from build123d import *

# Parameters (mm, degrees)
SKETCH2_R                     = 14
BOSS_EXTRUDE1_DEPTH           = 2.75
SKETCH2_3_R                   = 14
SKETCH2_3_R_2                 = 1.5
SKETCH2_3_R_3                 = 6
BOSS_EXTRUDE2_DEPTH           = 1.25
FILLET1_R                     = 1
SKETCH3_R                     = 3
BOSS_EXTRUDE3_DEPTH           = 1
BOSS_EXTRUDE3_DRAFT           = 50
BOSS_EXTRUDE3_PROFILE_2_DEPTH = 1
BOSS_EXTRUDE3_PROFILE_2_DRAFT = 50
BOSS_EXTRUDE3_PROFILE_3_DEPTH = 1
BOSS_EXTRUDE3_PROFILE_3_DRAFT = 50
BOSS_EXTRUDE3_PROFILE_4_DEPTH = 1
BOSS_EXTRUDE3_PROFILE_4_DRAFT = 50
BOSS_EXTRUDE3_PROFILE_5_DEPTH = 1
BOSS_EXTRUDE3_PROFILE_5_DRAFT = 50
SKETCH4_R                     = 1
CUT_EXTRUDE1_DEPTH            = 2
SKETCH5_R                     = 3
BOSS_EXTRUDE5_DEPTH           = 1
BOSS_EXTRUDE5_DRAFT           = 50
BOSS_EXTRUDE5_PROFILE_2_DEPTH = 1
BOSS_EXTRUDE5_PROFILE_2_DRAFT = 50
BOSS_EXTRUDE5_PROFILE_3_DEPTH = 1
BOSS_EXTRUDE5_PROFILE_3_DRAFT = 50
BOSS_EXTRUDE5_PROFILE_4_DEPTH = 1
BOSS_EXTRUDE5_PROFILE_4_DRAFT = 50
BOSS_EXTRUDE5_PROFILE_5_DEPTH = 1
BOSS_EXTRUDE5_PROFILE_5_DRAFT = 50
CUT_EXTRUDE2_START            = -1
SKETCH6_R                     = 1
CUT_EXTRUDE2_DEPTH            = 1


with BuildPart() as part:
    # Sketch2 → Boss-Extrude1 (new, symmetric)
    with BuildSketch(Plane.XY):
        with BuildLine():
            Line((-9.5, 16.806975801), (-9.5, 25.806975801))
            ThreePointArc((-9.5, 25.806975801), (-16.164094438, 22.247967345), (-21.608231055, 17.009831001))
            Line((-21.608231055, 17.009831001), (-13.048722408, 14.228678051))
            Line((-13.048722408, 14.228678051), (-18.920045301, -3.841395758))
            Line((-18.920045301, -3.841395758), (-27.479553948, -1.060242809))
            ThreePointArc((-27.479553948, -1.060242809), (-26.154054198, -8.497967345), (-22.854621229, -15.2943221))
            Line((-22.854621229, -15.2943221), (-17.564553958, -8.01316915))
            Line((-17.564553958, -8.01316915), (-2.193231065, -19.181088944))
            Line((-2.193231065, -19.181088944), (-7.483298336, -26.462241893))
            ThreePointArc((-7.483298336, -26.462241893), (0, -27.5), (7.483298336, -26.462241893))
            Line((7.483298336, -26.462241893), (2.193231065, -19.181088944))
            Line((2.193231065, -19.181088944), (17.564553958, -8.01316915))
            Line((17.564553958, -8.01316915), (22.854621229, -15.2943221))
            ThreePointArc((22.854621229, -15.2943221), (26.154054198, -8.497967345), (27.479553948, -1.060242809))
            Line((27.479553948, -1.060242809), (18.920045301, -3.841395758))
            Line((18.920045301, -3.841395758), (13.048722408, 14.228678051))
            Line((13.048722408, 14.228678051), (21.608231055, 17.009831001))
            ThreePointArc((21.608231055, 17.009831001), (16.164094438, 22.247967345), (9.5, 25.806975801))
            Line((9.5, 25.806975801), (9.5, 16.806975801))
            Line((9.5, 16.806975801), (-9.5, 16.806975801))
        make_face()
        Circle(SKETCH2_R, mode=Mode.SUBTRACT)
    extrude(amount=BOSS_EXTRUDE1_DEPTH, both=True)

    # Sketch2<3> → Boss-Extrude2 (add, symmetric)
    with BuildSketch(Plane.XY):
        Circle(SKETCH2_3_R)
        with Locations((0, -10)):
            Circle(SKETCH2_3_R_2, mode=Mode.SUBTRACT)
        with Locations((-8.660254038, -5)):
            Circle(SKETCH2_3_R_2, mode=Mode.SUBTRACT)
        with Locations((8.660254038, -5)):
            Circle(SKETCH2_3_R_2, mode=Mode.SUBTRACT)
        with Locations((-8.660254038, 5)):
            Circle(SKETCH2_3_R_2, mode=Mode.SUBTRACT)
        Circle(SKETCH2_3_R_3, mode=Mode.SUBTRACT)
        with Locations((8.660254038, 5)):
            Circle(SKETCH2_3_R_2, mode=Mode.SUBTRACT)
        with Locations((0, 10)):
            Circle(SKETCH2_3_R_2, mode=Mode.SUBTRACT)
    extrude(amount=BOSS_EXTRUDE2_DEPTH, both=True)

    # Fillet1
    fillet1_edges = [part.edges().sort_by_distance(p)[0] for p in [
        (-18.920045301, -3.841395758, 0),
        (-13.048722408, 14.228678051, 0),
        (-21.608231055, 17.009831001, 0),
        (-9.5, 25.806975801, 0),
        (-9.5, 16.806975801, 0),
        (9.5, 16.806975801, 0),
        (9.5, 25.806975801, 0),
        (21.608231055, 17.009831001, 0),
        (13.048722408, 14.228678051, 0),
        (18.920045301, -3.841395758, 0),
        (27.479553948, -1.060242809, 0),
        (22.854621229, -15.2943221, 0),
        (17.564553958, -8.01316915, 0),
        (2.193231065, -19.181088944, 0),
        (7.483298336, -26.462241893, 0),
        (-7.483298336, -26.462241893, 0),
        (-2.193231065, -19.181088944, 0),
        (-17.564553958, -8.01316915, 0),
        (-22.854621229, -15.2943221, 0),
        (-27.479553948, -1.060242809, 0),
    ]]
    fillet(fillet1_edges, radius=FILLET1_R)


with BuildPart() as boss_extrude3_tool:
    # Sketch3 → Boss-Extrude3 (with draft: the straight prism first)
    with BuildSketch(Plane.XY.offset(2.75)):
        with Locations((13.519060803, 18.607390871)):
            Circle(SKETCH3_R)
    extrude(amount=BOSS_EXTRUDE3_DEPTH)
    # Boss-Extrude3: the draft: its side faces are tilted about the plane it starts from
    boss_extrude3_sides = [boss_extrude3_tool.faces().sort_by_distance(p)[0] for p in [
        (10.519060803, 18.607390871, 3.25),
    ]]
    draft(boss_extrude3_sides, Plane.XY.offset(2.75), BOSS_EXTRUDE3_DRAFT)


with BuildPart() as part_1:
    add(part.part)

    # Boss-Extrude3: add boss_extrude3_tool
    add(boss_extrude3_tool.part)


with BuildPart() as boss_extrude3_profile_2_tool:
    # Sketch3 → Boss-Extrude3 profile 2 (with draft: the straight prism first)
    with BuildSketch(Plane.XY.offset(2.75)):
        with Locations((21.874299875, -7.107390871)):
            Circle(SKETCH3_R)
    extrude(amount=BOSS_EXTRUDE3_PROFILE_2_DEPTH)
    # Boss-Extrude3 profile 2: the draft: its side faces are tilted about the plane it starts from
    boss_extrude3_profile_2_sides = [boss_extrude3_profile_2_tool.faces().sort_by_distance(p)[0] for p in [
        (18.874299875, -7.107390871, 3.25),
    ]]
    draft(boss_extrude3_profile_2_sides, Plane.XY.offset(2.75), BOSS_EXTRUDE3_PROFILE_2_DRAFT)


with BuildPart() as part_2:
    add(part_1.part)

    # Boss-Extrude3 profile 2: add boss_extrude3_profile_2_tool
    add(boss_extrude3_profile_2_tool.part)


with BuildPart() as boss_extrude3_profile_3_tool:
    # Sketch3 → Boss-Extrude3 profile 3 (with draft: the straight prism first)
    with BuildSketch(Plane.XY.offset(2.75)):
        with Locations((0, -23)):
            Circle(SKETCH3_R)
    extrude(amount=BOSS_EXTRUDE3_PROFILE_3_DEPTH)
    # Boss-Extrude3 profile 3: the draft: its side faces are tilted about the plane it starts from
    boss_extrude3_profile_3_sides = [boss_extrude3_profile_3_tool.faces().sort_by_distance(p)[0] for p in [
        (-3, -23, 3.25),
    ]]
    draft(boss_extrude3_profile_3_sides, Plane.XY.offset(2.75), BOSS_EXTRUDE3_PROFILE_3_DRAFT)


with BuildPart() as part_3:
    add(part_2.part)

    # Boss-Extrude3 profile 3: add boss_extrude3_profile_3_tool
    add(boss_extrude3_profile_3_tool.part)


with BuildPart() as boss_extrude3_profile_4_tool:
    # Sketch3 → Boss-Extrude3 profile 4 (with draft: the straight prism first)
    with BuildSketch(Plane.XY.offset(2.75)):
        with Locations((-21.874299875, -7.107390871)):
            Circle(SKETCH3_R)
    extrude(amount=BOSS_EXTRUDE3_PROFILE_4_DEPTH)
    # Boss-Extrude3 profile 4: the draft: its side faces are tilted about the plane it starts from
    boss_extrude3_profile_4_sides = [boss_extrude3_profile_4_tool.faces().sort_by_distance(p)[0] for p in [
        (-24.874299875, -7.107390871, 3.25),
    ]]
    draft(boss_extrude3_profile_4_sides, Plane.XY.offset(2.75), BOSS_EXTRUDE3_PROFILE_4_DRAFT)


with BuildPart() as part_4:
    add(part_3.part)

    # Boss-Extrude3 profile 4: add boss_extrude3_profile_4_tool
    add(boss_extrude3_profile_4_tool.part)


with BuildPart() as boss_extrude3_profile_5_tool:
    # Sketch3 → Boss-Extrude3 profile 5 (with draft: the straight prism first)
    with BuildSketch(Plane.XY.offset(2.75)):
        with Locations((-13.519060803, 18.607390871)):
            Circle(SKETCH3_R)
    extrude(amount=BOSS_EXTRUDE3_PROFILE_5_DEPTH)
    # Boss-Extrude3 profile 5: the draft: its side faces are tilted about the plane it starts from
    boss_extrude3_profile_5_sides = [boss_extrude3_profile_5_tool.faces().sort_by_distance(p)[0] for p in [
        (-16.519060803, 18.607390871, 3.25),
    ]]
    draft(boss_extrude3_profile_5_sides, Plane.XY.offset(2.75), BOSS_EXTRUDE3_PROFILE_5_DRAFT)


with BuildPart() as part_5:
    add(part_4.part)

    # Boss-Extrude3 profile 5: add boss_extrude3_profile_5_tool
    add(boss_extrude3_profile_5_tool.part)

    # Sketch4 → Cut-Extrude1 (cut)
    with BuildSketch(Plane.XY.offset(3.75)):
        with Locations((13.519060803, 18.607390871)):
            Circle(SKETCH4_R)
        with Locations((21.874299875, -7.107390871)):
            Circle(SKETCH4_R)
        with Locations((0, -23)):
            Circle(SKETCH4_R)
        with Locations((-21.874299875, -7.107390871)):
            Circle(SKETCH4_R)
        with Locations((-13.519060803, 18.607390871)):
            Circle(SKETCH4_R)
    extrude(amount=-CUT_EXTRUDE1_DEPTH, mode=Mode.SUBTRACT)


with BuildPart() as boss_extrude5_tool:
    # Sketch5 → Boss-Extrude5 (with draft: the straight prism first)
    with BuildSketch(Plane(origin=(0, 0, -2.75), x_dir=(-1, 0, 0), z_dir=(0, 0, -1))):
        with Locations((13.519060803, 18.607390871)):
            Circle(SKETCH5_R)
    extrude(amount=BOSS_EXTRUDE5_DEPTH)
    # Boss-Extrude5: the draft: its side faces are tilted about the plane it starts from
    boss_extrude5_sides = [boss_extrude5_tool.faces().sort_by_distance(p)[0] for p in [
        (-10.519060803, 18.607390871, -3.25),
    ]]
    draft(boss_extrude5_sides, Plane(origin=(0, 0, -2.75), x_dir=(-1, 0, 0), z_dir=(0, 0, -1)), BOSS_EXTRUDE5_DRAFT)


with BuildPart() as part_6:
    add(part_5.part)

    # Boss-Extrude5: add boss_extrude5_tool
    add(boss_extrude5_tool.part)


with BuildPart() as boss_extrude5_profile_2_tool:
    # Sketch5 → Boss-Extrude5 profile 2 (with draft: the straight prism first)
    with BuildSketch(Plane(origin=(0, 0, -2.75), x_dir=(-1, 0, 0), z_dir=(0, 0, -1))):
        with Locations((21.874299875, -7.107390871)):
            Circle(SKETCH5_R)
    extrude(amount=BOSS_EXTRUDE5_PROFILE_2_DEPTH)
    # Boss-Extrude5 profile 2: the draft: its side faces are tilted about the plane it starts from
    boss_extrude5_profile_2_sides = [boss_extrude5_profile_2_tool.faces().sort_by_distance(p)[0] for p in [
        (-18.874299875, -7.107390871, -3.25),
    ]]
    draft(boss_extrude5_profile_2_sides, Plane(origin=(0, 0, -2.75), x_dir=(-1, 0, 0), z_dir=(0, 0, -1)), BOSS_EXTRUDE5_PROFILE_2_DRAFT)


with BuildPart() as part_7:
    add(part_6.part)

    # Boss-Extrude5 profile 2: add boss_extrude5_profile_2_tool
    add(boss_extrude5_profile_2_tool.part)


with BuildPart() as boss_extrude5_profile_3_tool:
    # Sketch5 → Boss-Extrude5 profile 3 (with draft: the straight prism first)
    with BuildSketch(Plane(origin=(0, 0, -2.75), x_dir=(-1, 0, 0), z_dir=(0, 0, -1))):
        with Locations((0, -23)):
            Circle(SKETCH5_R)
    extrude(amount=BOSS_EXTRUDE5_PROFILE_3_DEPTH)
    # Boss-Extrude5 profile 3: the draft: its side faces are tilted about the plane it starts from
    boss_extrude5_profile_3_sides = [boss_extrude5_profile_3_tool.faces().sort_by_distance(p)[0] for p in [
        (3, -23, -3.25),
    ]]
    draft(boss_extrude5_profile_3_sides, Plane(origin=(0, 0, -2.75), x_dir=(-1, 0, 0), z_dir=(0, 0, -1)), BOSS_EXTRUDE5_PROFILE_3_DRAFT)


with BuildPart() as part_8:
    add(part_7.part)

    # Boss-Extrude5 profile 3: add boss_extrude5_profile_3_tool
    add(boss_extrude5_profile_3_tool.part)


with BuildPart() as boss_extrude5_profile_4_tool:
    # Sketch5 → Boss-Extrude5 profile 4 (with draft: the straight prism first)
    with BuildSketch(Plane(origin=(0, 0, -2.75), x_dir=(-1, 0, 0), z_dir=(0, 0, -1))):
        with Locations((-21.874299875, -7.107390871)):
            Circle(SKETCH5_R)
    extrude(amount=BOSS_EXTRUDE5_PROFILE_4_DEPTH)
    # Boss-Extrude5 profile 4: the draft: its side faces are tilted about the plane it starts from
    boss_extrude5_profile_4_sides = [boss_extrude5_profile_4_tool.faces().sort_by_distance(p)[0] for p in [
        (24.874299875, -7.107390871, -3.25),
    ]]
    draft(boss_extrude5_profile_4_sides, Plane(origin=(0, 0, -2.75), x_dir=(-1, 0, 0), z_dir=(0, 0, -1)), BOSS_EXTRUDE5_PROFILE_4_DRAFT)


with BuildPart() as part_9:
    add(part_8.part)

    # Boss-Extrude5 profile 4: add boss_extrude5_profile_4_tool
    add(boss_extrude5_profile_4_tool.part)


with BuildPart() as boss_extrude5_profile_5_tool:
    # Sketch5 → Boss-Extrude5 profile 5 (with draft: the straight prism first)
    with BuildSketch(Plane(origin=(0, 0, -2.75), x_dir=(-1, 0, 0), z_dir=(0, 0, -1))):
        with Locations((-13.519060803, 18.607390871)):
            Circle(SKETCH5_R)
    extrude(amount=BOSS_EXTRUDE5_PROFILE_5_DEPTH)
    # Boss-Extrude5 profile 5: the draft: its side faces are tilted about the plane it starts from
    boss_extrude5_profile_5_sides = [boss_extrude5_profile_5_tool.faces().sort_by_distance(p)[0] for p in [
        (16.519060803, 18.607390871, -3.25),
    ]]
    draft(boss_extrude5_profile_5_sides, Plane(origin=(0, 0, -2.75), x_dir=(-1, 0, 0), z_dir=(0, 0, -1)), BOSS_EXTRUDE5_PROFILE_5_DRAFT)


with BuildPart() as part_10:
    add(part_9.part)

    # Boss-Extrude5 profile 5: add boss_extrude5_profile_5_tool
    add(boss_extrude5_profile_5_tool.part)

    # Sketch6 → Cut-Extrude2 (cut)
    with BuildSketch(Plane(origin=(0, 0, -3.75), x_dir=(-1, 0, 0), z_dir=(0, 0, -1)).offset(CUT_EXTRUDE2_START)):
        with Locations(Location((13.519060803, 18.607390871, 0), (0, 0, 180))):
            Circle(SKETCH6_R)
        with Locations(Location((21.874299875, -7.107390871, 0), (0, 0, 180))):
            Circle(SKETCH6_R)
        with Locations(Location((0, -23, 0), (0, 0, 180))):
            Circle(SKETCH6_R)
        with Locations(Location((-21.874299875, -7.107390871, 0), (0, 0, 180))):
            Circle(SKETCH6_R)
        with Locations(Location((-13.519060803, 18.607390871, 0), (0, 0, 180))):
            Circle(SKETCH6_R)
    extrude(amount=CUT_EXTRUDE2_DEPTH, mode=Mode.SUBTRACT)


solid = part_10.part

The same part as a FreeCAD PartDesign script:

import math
import FreeCAD as App
import Part
import Sketcher

V = App.Vector
Q = App.Units.Quantity


def edges_at(feature, points):
    """Names of the edges that pass closest to the given points."""
    edges = feature.Shape.Edges
    near = lambda p: min(range(len(edges)), key=lambda i: edges[i].distToShape(Part.Vertex(*p))[0])
    return sorted({f"Edge{near(p) + 1}" for p in points})


def faces_at(feature, points):
    """Names of the faces that lie closest to the given points."""
    faces = feature.Shape.Faces
    near = lambda p: min(range(len(faces)), key=lambda i: faces[i].distToShape(Part.Vertex(*p))[0])
    return sorted({f"Face{near(p) + 1}" for p in points})

doc = App.newDocument("Part")
params = doc.addObject("Spreadsheet::Sheet", "Params")
for row, (alias, value) in enumerate([
    ("sketch1_diameter", "28 mm"),
    ("sketch1_radius", "27.5 mm"),
    ("sketch1_width", "19 mm"),
    ("sketch1_height", "9 mm"),
    ("sketch1_length", "9 mm"),
    ("pad1_length", "5.5 mm"),
    ("sketch2_diameter", "28 mm"),
    ("sketch2_diameter2", "3 mm"),
    ("sketch2_diameter3", "12 mm"),
    ("pad2_length", "2.5 mm"),
    ("fillet_radius", "1 mm"),
    ("sketch3_diameter", "6 mm"),
    ("pad3_length", "1 mm"),
    ("draft_angle", "50 deg"),
    ("sketch4_diameter", "6 mm"),
    ("pad4_length", "1 mm"),
    ("draft2_angle", "50 deg"),
    ("sketch5_diameter", "6 mm"),
    ("pad5_length", "1 mm"),
    ("draft3_angle", "50 deg"),
    ("sketch6_diameter", "6 mm"),
    ("pad6_length", "1 mm"),
    ("draft4_angle", "50 deg"),
    ("sketch7_diameter", "6 mm"),
    ("pad7_length", "1 mm"),
    ("draft5_angle", "50 deg"),
    ("sketch8_diameter", "2 mm"),
    ("pocket1_length", "2 mm"),
    ("sketch9_diameter", "6 mm"),
    ("pad8_length", "1 mm"),
    ("draft6_angle", "50 deg"),
    ("sketch10_diameter", "6 mm"),
    ("pad9_length", "1 mm"),
    ("draft7_angle", "50 deg"),
    ("sketch11_diameter", "6 mm"),
    ("pad10_length", "1 mm"),
    ("draft8_angle", "50 deg"),
    ("sketch12_diameter", "6 mm"),
    ("pad11_length", "1 mm"),
    ("draft9_angle", "50 deg"),
    ("sketch13_diameter", "6 mm"),
    ("pad12_length", "1 mm"),
    ("draft10_angle", "50 deg"),
    ("sketch14_diameter", "2 mm"),
    ("pocket2_length", "1 mm"),
], start=1):
    params.set(f"A{row}", alias)
    params.set(f"B{row}", "=" + value)
    params.setAlias(f"B{row}", alias)

body = doc.addObject("PartDesign::Body", "Body")

# Sketch on XY plane
sketch1 = body.newObject("Sketcher::SketchObject", "Sketch")
sketch1.AttachmentSupport = (doc.getObject("XY_Plane"), [""])
sketch1.MapMode = "FlatFace"
sketch1.addGeometry([
    Part.LineSegment(V(-9.5, 16.806976, 0), V(-9.5, 25.806976, 0)),  # 0
    Part.ArcOfCircle(Part.Circle(V(0, 0, 0), V(0, 0, 1), 27.5), math.radians(110.209545), math.radians(141.790455)),  # 1
    Part.LineSegment(V(-21.608231, 17.009831, 0), V(-13.048722, 14.228678, 0)),  # 2
    Part.LineSegment(V(-13.048722, 14.228678, 0), V(-18.920045, -3.841396, 0)),  # 3
    Part.LineSegment(V(-18.920045, -3.841396, 0), V(-27.479554, -1.060243, 0)),  # 4
    Part.ArcOfCircle(Part.Circle(V(0, 0, 0), V(0, 0, 1), 27.5), math.radians(-177.790455), math.radians(-146.209545)),  # 5
    Part.LineSegment(V(-22.854621, -15.294322, 0), V(-17.564554, -8.013169, 0)),  # 6
    Part.LineSegment(V(-17.564554, -8.013169, 0), V(-2.193231, -19.181089, 0)),  # 7
    Part.LineSegment(V(-2.193231, -19.181089, 0), V(-7.483298, -26.462242, 0)),  # 8
    Part.ArcOfCircle(Part.Circle(V(0, 0, 0), V(0, 0, 1), 27.5), math.radians(-105.790455), math.radians(-74.209545)),  # 9
    Part.LineSegment(V(7.483298, -26.462242, 0), V(2.193231, -19.181089, 0)),  # 10
    Part.LineSegment(V(2.193231, -19.181089, 0), V(17.564554, -8.013169, 0)),  # 11
    Part.LineSegment(V(17.564554, -8.013169, 0), V(22.854621, -15.294322, 0)),  # 12
    Part.ArcOfCircle(Part.Circle(V(0, 0, 0), V(0, 0, 1), 27.5), math.radians(-33.790455), math.radians(-2.209545)),  # 13
    Part.LineSegment(V(27.479554, -1.060243, 0), V(18.920045, -3.841396, 0)),  # 14
    Part.LineSegment(V(18.920045, -3.841396, 0), V(13.048722, 14.228678, 0)),  # 15
    Part.LineSegment(V(13.048722, 14.228678, 0), V(21.608231, 17.009831, 0)),  # 16
    Part.ArcOfCircle(Part.Circle(V(0, 0, 0), V(0, 0, 1), 27.5), math.radians(38.209545), math.radians(69.790455)),  # 17
    Part.LineSegment(V(9.5, 25.806976, 0), V(9.5, 16.806976, 0)),  # 18
    Part.LineSegment(V(9.5, 16.806976, 0), V(-9.5, 16.806976, 0)),  # 19
    Part.Circle(V(0, 0, 0), V(0, 0, 1), 14),  # 20
], False)
sketch1.addConstraint([
    Sketcher.Constraint("Coincident", 0, 2, 1, 1),
    Sketcher.Constraint("Coincident", 1, 2, 2, 1),
    Sketcher.Constraint("Coincident", 2, 2, 3, 1),
    Sketcher.Constraint("Coincident", 3, 2, 4, 1),
    Sketcher.Constraint("Coincident", 4, 2, 5, 1),
    Sketcher.Constraint("Coincident", 5, 2, 6, 1),
    Sketcher.Constraint("Coincident", 6, 2, 7, 1),
    Sketcher.Constraint("Coincident", 7, 2, 8, 1),
    Sketcher.Constraint("Coincident", 8, 2, 9, 1),
    Sketcher.Constraint("Coincident", 9, 2, 10, 1),
    Sketcher.Constraint("Coincident", 10, 2, 11, 1),
    Sketcher.Constraint("Coincident", 11, 2, 12, 1),
    Sketcher.Constraint("Coincident", 12, 2, 13, 1),
    Sketcher.Constraint("Coincident", 13, 2, 14, 1),
    Sketcher.Constraint("Coincident", 14, 2, 15, 1),
    Sketcher.Constraint("Coincident", 15, 2, 16, 1),
    Sketcher.Constraint("Coincident", 16, 2, 17, 1),
    Sketcher.Constraint("Coincident", 17, 2, 18, 1),
    Sketcher.Constraint("Coincident", 18, 2, 19, 1),
    Sketcher.Constraint("Coincident", 19, 2, 0, 1),
    Sketcher.Constraint("Vertical", 0),
    Sketcher.Constraint("Vertical", 18),
    Sketcher.Constraint("Horizontal", 19),
    Sketcher.Constraint("Coincident", 1, 3, -1, 1),
    Sketcher.Constraint("Coincident", 5, 3, -1, 1),
    Sketcher.Constraint("Coincident", 9, 3, -1, 1),
    Sketcher.Constraint("Coincident", 13, 3, -1, 1),
    Sketcher.Constraint("Coincident", 17, 3, -1, 1),
    Sketcher.Constraint("Coincident", 20, 3, -1, 1),
    Sketcher.Constraint("Equal", 1, 5),
    Sketcher.Constraint("Equal", 5, 9),
    Sketcher.Constraint("Equal", 9, 13),
    Sketcher.Constraint("Equal", 13, 17),
    Sketcher.Constraint("Symmetric", 7, 2, 10, 2, -2),
    Sketcher.Constraint("Symmetric", 6, 2, 11, 2, -2),
    Sketcher.Constraint("Symmetric", 3, 2, 14, 2, -2),
    Sketcher.Constraint("Symmetric", 2, 2, 15, 2, -2),
    Sketcher.Constraint("Perpendicular", 2, 3),
    Sketcher.Constraint("Perpendicular", 3, 4),
    Sketcher.Constraint("Perpendicular", 6, 7),
    Sketcher.Constraint("Perpendicular", 7, 8),
    Sketcher.Constraint("Perpendicular", 10, 11),
    Sketcher.Constraint("Perpendicular", 11, 12),
    Sketcher.Constraint("Perpendicular", 14, 15),
    Sketcher.Constraint("Perpendicular", 15, 16),
    Sketcher.Constraint("Horizontal", 0, 2, 17, 2),
    Sketcher.Constraint("Equal", 2, 4),
    Sketcher.Constraint("Equal", 4, 6),
    Sketcher.Constraint("Equal", 3, 7),
    Sketcher.Constraint("Equal", 6, 8),
    Sketcher.Constraint("Diameter", 20, Q("28 mm")),
    Sketcher.Constraint("Radius", 1, Q("27.5 mm")),
    Sketcher.Constraint("DistanceX", 19, 2, 19, 1, Q("19 mm")),
    Sketcher.Constraint("DistanceY", 0, 1, 0, 2, Q("9 mm")),
    Sketcher.Constraint("Angle", 2, Q("-18 deg")),
    Sketcher.Constraint("Angle", 6, Q("54 deg")),
    Sketcher.Constraint("Distance", 2, Q("9 mm")),
    Sketcher.Constraint("Distance", 3, Q("19 mm")),
])
sketch1.setExpression("Constraints[50]", "Params.sketch1_diameter")
sketch1.setExpression("Constraints[51]", "Params.sketch1_radius")
sketch1.setExpression("Constraints[52]", "Params.sketch1_width")
sketch1.setExpression("Constraints[53]", "Params.sketch1_height")
sketch1.setExpression("Constraints[56]", "Params.sketch1_length")
pad1 = body.newObject("PartDesign::Pad", "Pad")
pad1.Profile = sketch1
pad1.setExpression("Length", "Params.pad1_length")
pad1.Midplane = True

# Sketch on XY plane
sketch2 = body.newObject("Sketcher::SketchObject", "Sketch001")
sketch2.AttachmentSupport = (doc.getObject("XY_Plane"), [""])
sketch2.MapMode = "FlatFace"
sketch2.addGeometry([
    Part.Circle(V(0, 0, 0), V(0, 0, 1), 14),  # 0
    Part.Circle(V(-8.660254, -5, 0), V(0, 0, 1), 1.5),  # 1
    Part.Circle(V(0, -10, 0), V(0, 0, 1), 1.5),  # 2
    Part.Circle(V(8.660254, -5, 0), V(0, 0, 1), 1.5),  # 3
    Part.Circle(V(-8.660254, 5, 0), V(0, 0, 1), 1.5),  # 4
    Part.Circle(V(0, 0, 0), V(0, 0, 1), 6),  # 5
    Part.Circle(V(8.660254, 5, 0), V(0, 0, 1), 1.5),  # 6
    Part.Circle(V(0, 10, 0), V(0, 0, 1), 1.5),  # 7
], False)
sketch2.addConstraint([
    Sketcher.Constraint("Coincident", 0, 3, -1, 1),
    Sketcher.Constraint("Coincident", 5, 3, -1, 1),
    Sketcher.Constraint("Equal", 1, 2),
    Sketcher.Constraint("Equal", 2, 3),
    Sketcher.Constraint("Equal", 3, 4),
    Sketcher.Constraint("Equal", 4, 6),
    Sketcher.Constraint("Equal", 6, 7),
    Sketcher.Constraint("Symmetric", 3, 3, 4, 3, -1, 1),
    Sketcher.Constraint("Symmetric", 1, 3, 6, 3, -1, 1),
    Sketcher.Constraint("Symmetric", 2, 3, 7, 3, -1, 1),
    Sketcher.Constraint("Symmetric", 1, 3, 3, 3, -2),
    Sketcher.Constraint("PointOnObject", 2, 3, -2),
    Sketcher.Constraint("Diameter", 0, Q("28 mm")),
    Sketcher.Constraint("Diameter", 1, Q("3 mm")),
    Sketcher.Constraint("Diameter", 5, Q("12 mm")),
    Sketcher.Constraint("DistanceY", 1, 3, -1, 1, Q("5 mm")),
    Sketcher.Constraint("DistanceY", 2, 3, -1, 1, Q("10 mm")),
    Sketcher.Constraint("DistanceX", 1, 3, 3, 3, Q("17.320508 mm")),
])
sketch2.setExpression("Constraints[12]", "Params.sketch2_diameter")
sketch2.setExpression("Constraints[13]", "Params.sketch2_diameter2")
sketch2.setExpression("Constraints[14]", "Params.sketch2_diameter3")
pad2 = body.newObject("PartDesign::Pad", "Pad001")
pad2.Profile = sketch2
pad2.setExpression("Length", "Params.pad2_length")
pad2.Midplane = True
doc.recompute()

fillet = body.newObject("PartDesign::Fillet", "Fillet")
fillet.Base = (pad2, edges_at(pad2, [
    (-18.92, -3.841, 0),
    (-13.049, 14.229, 0),
    (-21.608, 17.01, 0),
    (-9.5, 25.807, 0),
    (-9.5, 16.807, 0),
    (9.5, 16.807, 0),
    (9.5, 25.807, 0),
    (21.608, 17.01, 0),
    (13.049, 14.229, 0),
    (18.92, -3.841, 0),
    (27.48, -1.06, 0),
    (22.855, -15.294, 0),
    (17.565, -8.013, 0),
    (2.193, -19.181, 0),
    (7.483, -26.462, 0),
    (-7.483, -26.462, 0),
    (-2.193, -19.181, 0),
    (-17.565, -8.013, 0),
    (-22.855, -15.294, 0),
    (-27.48, -1.06, 0),
]))
fillet.setExpression("Radius", "Params.fillet_radius")
body2 = doc.addObject("PartDesign::Body", "Body001")

# Sketch on XY plane
sketch3 = body2.newObject("Sketcher::SketchObject", "Sketch002")
sketch3.AttachmentSupport = (doc.getObject("XY_Plane001"), [""])
sketch3.MapMode = "FlatFace"
sketch3.AttachmentOffset = App.Placement(V(0, 0, 2.75), App.Rotation())
sketch3.addGeometry(Part.Circle(V(13.519061, 18.607391, 0), V(0, 0, 1), 3), False)
sketch3.addConstraint([
    Sketcher.Constraint("Diameter", 0, Q("6 mm")),
    Sketcher.Constraint("DistanceX", -1, 1, 0, 3, Q("13.519061 mm")),
    Sketcher.Constraint("DistanceY", -1, 1, 0, 3, Q("18.607391 mm")),
])
sketch3.setExpression("Constraints[0]", "Params.sketch3_diameter")
pad3 = body2.newObject("PartDesign::Pad", "Pad002")
pad3.Profile = sketch3
pad3.setExpression("Length", "Params.pad3_length")
doc.recompute()

datumplane = body2.newObject("PartDesign::Plane", "DatumPlane")
datumplane.AttachmentSupport = (doc.getObject("XY_Plane001"), [""])
datumplane.MapMode = "FlatFace"
datumplane.AttachmentOffset = App.Placement(V(0, 0, 2.75), App.Rotation())
draft = body2.newObject("PartDesign::Draft", "Draft")
draft.Base = (pad3, faces_at(pad3, [(10.519, 18.607, 3.25)]))
draft.NeutralPlane = (datumplane, [""])
draft.setExpression("Angle", "Params.draft_angle")
draft.Reversed = False
doc.recompute()

boolean = body.newObject("PartDesign::Boolean", "Boolean")
boolean.Type = "Fuse"
boolean.addObjects([body2])
body3 = doc.addObject("PartDesign::Body", "Body002")

# Sketch on XY plane
sketch4 = body3.newObject("Sketcher::SketchObject", "Sketch003")
sketch4.AttachmentSupport = (doc.getObject("XY_Plane002"), [""])
sketch4.MapMode = "FlatFace"
sketch4.AttachmentOffset = App.Placement(V(0, 0, 2.75), App.Rotation())
sketch4.addGeometry(Part.Circle(V(21.8743, -7.107391, 0), V(0, 0, 1), 3), False)
sketch4.addConstraint([
    Sketcher.Constraint("Diameter", 0, Q("6 mm")),
    Sketcher.Constraint("DistanceX", -1, 1, 0, 3, Q("21.8743 mm")),
    Sketcher.Constraint("DistanceY", 0, 3, -1, 1, Q("7.107391 mm")),
])
sketch4.setExpression("Constraints[0]", "Params.sketch4_diameter")
pad4 = body3.newObject("PartDesign::Pad", "Pad003")
pad4.Profile = sketch4
pad4.setExpression("Length", "Params.pad4_length")
doc.recompute()

datumplane2 = body3.newObject("PartDesign::Plane", "DatumPlane001")
datumplane2.AttachmentSupport = (doc.getObject("XY_Plane002"), [""])
datumplane2.MapMode = "FlatFace"
datumplane2.AttachmentOffset = App.Placement(V(0, 0, 2.75), App.Rotation())
draft2 = body3.newObject("PartDesign::Draft", "Draft001")
draft2.Base = (pad4, faces_at(pad4, [(18.874, -7.107, 3.25)]))
draft2.NeutralPlane = (datumplane2, [""])
draft2.setExpression("Angle", "Params.draft2_angle")
draft2.Reversed = False
doc.recompute()

boolean2 = body.newObject("PartDesign::Boolean", "Boolean001")
boolean2.Type = "Fuse"
boolean2.addObjects([body3])
body4 = doc.addObject("PartDesign::Body", "Body003")

# Sketch on XY plane
sketch5 = body4.newObject("Sketcher::SketchObject", "Sketch004")
sketch5.AttachmentSupport = (doc.getObject("XY_Plane003"), [""])
sketch5.MapMode = "FlatFace"
sketch5.AttachmentOffset = App.Placement(V(0, 0, 2.75), App.Rotation())
sketch5.addGeometry(Part.Circle(V(0, -23, 0), V(0, 0, 1), 3), False)
sketch5.addConstraint([
    Sketcher.Constraint("PointOnObject", 0, 3, -2),
    Sketcher.Constraint("Diameter", 0, Q("6 mm")),
    Sketcher.Constraint("DistanceY", 0, 3, -1, 1, Q("23 mm")),
])
sketch5.setExpression("Constraints[1]", "Params.sketch5_diameter")
pad5 = body4.newObject("PartDesign::Pad", "Pad004")
pad5.Profile = sketch5
pad5.setExpression("Length", "Params.pad5_length")
doc.recompute()

datumplane3 = body4.newObject("PartDesign::Plane", "DatumPlane002")
datumplane3.AttachmentSupport = (doc.getObject("XY_Plane003"), [""])
datumplane3.MapMode = "FlatFace"
datumplane3.AttachmentOffset = App.Placement(V(0, 0, 2.75), App.Rotation())
draft3 = body4.newObject("PartDesign::Draft", "Draft002")
draft3.Base = (pad5, faces_at(pad5, [(-3, -23, 3.25)]))
draft3.NeutralPlane = (datumplane3, [""])
draft3.setExpression("Angle", "Params.draft3_angle")
draft3.Reversed = False
doc.recompute()

boolean3 = body.newObject("PartDesign::Boolean", "Boolean002")
boolean3.Type = "Fuse"
boolean3.addObjects([body4])
body5 = doc.addObject("PartDesign::Body", "Body004")

# Sketch on XY plane
sketch6 = body5.newObject("Sketcher::SketchObject", "Sketch005")
sketch6.AttachmentSupport = (doc.getObject("XY_Plane004"), [""])
sketch6.MapMode = "FlatFace"
sketch6.AttachmentOffset = App.Placement(V(0, 0, 2.75), App.Rotation())
sketch6.addGeometry(Part.Circle(V(-21.8743, -7.107391, 0), V(0, 0, 1), 3), False)
sketch6.addConstraint([
    Sketcher.Constraint("Diameter", 0, Q("6 mm")),
    Sketcher.Constraint("DistanceX", 0, 3, -1, 1, Q("21.8743 mm")),
    Sketcher.Constraint("DistanceY", 0, 3, -1, 1, Q("7.107391 mm")),
])
sketch6.setExpression("Constraints[0]", "Params.sketch6_diameter")
pad6 = body5.newObject("PartDesign::Pad", "Pad005")
pad6.Profile = sketch6
pad6.setExpression("Length", "Params.pad6_length")
doc.recompute()

datumplane4 = body5.newObject("PartDesign::Plane", "DatumPlane003")
datumplane4.AttachmentSupport = (doc.getObject("XY_Plane004"), [""])
datumplane4.MapMode = "FlatFace"
datumplane4.AttachmentOffset = App.Placement(V(0, 0, 2.75), App.Rotation())
draft4 = body5.newObject("PartDesign::Draft", "Draft003")
draft4.Base = (pad6, faces_at(pad6, [(-24.874, -7.107, 3.25)]))
draft4.NeutralPlane = (datumplane4, [""])
draft4.setExpression("Angle", "Params.draft4_angle")
draft4.Reversed = False
doc.recompute()

boolean4 = body.newObject("PartDesign::Boolean", "Boolean003")
boolean4.Type = "Fuse"
boolean4.addObjects([body5])
body6 = doc.addObject("PartDesign::Body", "Body005")

# Sketch on XY plane
sketch7 = body6.newObject("Sketcher::SketchObject", "Sketch006")
sketch7.AttachmentSupport = (doc.getObject("XY_Plane005"), [""])
sketch7.MapMode = "FlatFace"
sketch7.AttachmentOffset = App.Placement(V(0, 0, 2.75), App.Rotation())
sketch7.addGeometry(Part.Circle(V(-13.519061, 18.607391, 0), V(0, 0, 1), 3), False)
sketch7.addConstraint([
    Sketcher.Constraint("Diameter", 0, Q("6 mm")),
    Sketcher.Constraint("DistanceX", 0, 3, -1, 1, Q("13.519061 mm")),
    Sketcher.Constraint("DistanceY", -1, 1, 0, 3, Q("18.607391 mm")),
])
sketch7.setExpression("Constraints[0]", "Params.sketch7_diameter")
pad7 = body6.newObject("PartDesign::Pad", "Pad006")
pad7.Profile = sketch7
pad7.setExpression("Length", "Params.pad7_length")
doc.recompute()

datumplane5 = body6.newObject("PartDesign::Plane", "DatumPlane004")
datumplane5.AttachmentSupport = (doc.getObject("XY_Plane005"), [""])
datumplane5.MapMode = "FlatFace"
datumplane5.AttachmentOffset = App.Placement(V(0, 0, 2.75), App.Rotation())
draft5 = body6.newObject("PartDesign::Draft", "Draft004")
draft5.Base = (pad7, faces_at(pad7, [(-16.519, 18.607, 3.25)]))
draft5.NeutralPlane = (datumplane5, [""])
draft5.setExpression("Angle", "Params.draft5_angle")
draft5.Reversed = False
doc.recompute()

boolean5 = body.newObject("PartDesign::Boolean", "Boolean004")
boolean5.Type = "Fuse"
boolean5.addObjects([body6])

# Sketch on XY plane
sketch8 = body.newObject("Sketcher::SketchObject", "Sketch007")
sketch8.AttachmentSupport = (doc.getObject("XY_Plane"), [""])
sketch8.MapMode = "FlatFace"
sketch8.AttachmentOffset = App.Placement(V(0, 0, 3.75), App.Rotation())
sketch8.addGeometry([
    Part.Circle(V(13.519061, 18.607391, 0), V(0, 0, 1), 1),  # 0
    Part.Circle(V(21.8743, -7.107391, 0), V(0, 0, 1), 1),  # 1
    Part.Circle(V(0, -23, 0), V(0, 0, 1), 1),  # 2
    Part.Circle(V(-21.8743, -7.107391, 0), V(0, 0, 1), 1),  # 3
    Part.Circle(V(-13.519061, 18.607391, 0), V(0, 0, 1), 1),  # 4
], False)
sketch8.addConstraint([
    Sketcher.Constraint("Equal", 0, 1),
    Sketcher.Constraint("Equal", 1, 2),
    Sketcher.Constraint("Equal", 2, 3),
    Sketcher.Constraint("Equal", 3, 4),
    Sketcher.Constraint("Symmetric", 1, 3, 3, 3, -2),
    Sketcher.Constraint("Symmetric", 0, 3, 4, 3, -2),
    Sketcher.Constraint("PointOnObject", 2, 3, -2),
    Sketcher.Constraint("Diameter", 0, Q("2 mm")),
    Sketcher.Constraint("DistanceY", 2, 3, -1, 1, Q("23 mm")),
    Sketcher.Constraint("DistanceX", -1, 1, 1, 3, Q("21.8743 mm")),
    Sketcher.Constraint("DistanceX", -1, 1, 0, 3, Q("13.519061 mm")),
    Sketcher.Constraint("DistanceY", -1, 1, 0, 3, Q("18.607391 mm")),
    Sketcher.Constraint("DistanceY", 1, 3, -1, 1, Q("7.107391 mm")),
])
sketch8.setExpression("Constraints[7]", "Params.sketch8_diameter")
pocket1 = body.newObject("PartDesign::Pocket", "Pocket")
pocket1.Profile = sketch8
pocket1.setExpression("Length", "Params.pocket1_length")
body7 = doc.addObject("PartDesign::Body", "Body006")

# Sketch on XY plane
sketch9 = body7.newObject("Sketcher::SketchObject", "Sketch008")
sketch9.AttachmentSupport = (doc.getObject("XY_Plane006"), [""])
sketch9.MapMode = "FlatFace"
sketch9.AttachmentOffset = App.Placement(V(0, 0, -2.75), App.Rotation())
sketch9.addGeometry(Part.Circle(V(-13.519061, 18.607391, 0), V(0, 0, 1), 3), False)
sketch9.addConstraint([
    Sketcher.Constraint("Diameter", 0, Q("6 mm")),
    Sketcher.Constraint("DistanceX", 0, 3, -1, 1, Q("13.519061 mm")),
    Sketcher.Constraint("DistanceY", -1, 1, 0, 3, Q("18.607391 mm")),
])
sketch9.setExpression("Constraints[0]", "Params.sketch9_diameter")
pad8 = body7.newObject("PartDesign::Pad", "Pad007")
pad8.Profile = sketch9
pad8.setExpression("Length", "Params.pad8_length")
pad8.Reversed = True
doc.recompute()

datumplane6 = body7.newObject("PartDesign::Plane", "DatumPlane005")
datumplane6.AttachmentSupport = (doc.getObject("XY_Plane006"), [""])
datumplane6.MapMode = "FlatFace"
datumplane6.AttachmentOffset = App.Placement(V(0, 0, -2.75), App.Rotation())
draft6 = body7.newObject("PartDesign::Draft", "Draft005")
draft6.Base = (pad8, faces_at(pad8, [(-10.519, 18.607, -3.25)]))
draft6.NeutralPlane = (datumplane6, [""])
draft6.setExpression("Angle", "Params.draft6_angle")
draft6.Reversed = True
doc.recompute()

boolean6 = body.newObject("PartDesign::Boolean", "Boolean005")
boolean6.Type = "Fuse"
boolean6.addObjects([body7])
body8 = doc.addObject("PartDesign::Body", "Body007")

# Sketch on XY plane
sketch10 = body8.newObject("Sketcher::SketchObject", "Sketch009")
sketch10.AttachmentSupport = (doc.getObject("XY_Plane007"), [""])
sketch10.MapMode = "FlatFace"
sketch10.AttachmentOffset = App.Placement(V(0, 0, -2.75), App.Rotation())
sketch10.addGeometry(Part.Circle(V(-21.8743, -7.107391, 0), V(0, 0, 1), 3), False)
sketch10.addConstraint([
    Sketcher.Constraint("Diameter", 0, Q("6 mm")),
    Sketcher.Constraint("DistanceX", 0, 3, -1, 1, Q("21.8743 mm")),
    Sketcher.Constraint("DistanceY", 0, 3, -1, 1, Q("7.107391 mm")),
])
sketch10.setExpression("Constraints[0]", "Params.sketch10_diameter")
pad9 = body8.newObject("PartDesign::Pad", "Pad008")
pad9.Profile = sketch10
pad9.setExpression("Length", "Params.pad9_length")
pad9.Reversed = True
doc.recompute()

datumplane7 = body8.newObject("PartDesign::Plane", "DatumPlane006")
datumplane7.AttachmentSupport = (doc.getObject("XY_Plane007"), [""])
datumplane7.MapMode = "FlatFace"
datumplane7.AttachmentOffset = App.Placement(V(0, 0, -2.75), App.Rotation())
draft7 = body8.newObject("PartDesign::Draft", "Draft006")
draft7.Base = (pad9, faces_at(pad9, [(-18.874, -7.107, -3.25)]))
draft7.NeutralPlane = (datumplane7, [""])
draft7.setExpression("Angle", "Params.draft7_angle")
draft7.Reversed = True
doc.recompute()

boolean7 = body.newObject("PartDesign::Boolean", "Boolean006")
boolean7.Type = "Fuse"
boolean7.addObjects([body8])
body9 = doc.addObject("PartDesign::Body", "Body008")

# Sketch on XY plane
sketch11 = body9.newObject("Sketcher::SketchObject", "Sketch010")
sketch11.AttachmentSupport = (doc.getObject("XY_Plane008"), [""])
sketch11.MapMode = "FlatFace"
sketch11.AttachmentOffset = App.Placement(V(0, 0, -2.75), App.Rotation())
sketch11.addGeometry(Part.Circle(V(0, -23, 0), V(0, 0, 1), 3), False)
sketch11.addConstraint([
    Sketcher.Constraint("PointOnObject", 0, 3, -2),
    Sketcher.Constraint("Diameter", 0, Q("6 mm")),
    Sketcher.Constraint("DistanceY", 0, 3, -1, 1, Q("23 mm")),
])
sketch11.setExpression("Constraints[1]", "Params.sketch11_diameter")
pad10 = body9.newObject("PartDesign::Pad", "Pad009")
pad10.Profile = sketch11
pad10.setExpression("Length", "Params.pad10_length")
pad10.Reversed = True
doc.recompute()

datumplane8 = body9.newObject("PartDesign::Plane", "DatumPlane007")
datumplane8.AttachmentSupport = (doc.getObject("XY_Plane008"), [""])
datumplane8.MapMode = "FlatFace"
datumplane8.AttachmentOffset = App.Placement(V(0, 0, -2.75), App.Rotation())
draft8 = body9.newObject("PartDesign::Draft", "Draft007")
draft8.Base = (pad10, faces_at(pad10, [(3, -23, -3.25)]))
draft8.NeutralPlane = (datumplane8, [""])
draft8.setExpression("Angle", "Params.draft8_angle")
draft8.Reversed = True
doc.recompute()

boolean8 = body.newObject("PartDesign::Boolean", "Boolean007")
boolean8.Type = "Fuse"
boolean8.addObjects([body9])
body10 = doc.addObject("PartDesign::Body", "Body009")

# Sketch on XY plane
sketch12 = body10.newObject("Sketcher::SketchObject", "Sketch011")
sketch12.AttachmentSupport = (doc.getObject("XY_Plane009"), [""])
sketch12.MapMode = "FlatFace"
sketch12.AttachmentOffset = App.Placement(V(0, 0, -2.75), App.Rotation())
sketch12.addGeometry(Part.Circle(V(21.8743, -7.107391, 0), V(0, 0, 1), 3), False)
sketch12.addConstraint([
    Sketcher.Constraint("Diameter", 0, Q("6 mm")),
    Sketcher.Constraint("DistanceX", -1, 1, 0, 3, Q("21.8743 mm")),
    Sketcher.Constraint("DistanceY", 0, 3, -1, 1, Q("7.107391 mm")),
])
sketch12.setExpression("Constraints[0]", "Params.sketch12_diameter")
pad11 = body10.newObject("PartDesign::Pad", "Pad010")
pad11.Profile = sketch12
pad11.setExpression("Length", "Params.pad11_length")
pad11.Reversed = True
doc.recompute()

datumplane9 = body10.newObject("PartDesign::Plane", "DatumPlane008")
datumplane9.AttachmentSupport = (doc.getObject("XY_Plane009"), [""])
datumplane9.MapMode = "FlatFace"
datumplane9.AttachmentOffset = App.Placement(V(0, 0, -2.75), App.Rotation())
draft9 = body10.newObject("PartDesign::Draft", "Draft008")
draft9.Base = (pad11, faces_at(pad11, [(24.874, -7.107, -3.25)]))
draft9.NeutralPlane = (datumplane9, [""])
draft9.setExpression("Angle", "Params.draft9_angle")
draft9.Reversed = True
doc.recompute()

boolean9 = body.newObject("PartDesign::Boolean", "Boolean008")
boolean9.Type = "Fuse"
boolean9.addObjects([body10])
body11 = doc.addObject("PartDesign::Body", "Body010")

# Sketch on XY plane
sketch13 = body11.newObject("Sketcher::SketchObject", "Sketch012")
sketch13.AttachmentSupport = (doc.getObject("XY_Plane010"), [""])
sketch13.MapMode = "FlatFace"
sketch13.AttachmentOffset = App.Placement(V(0, 0, -2.75), App.Rotation())
sketch13.addGeometry(Part.Circle(V(13.519061, 18.607391, 0), V(0, 0, 1), 3), False)
sketch13.addConstraint([
    Sketcher.Constraint("Diameter", 0, Q("6 mm")),
    Sketcher.Constraint("DistanceX", -1, 1, 0, 3, Q("13.519061 mm")),
    Sketcher.Constraint("DistanceY", -1, 1, 0, 3, Q("18.607391 mm")),
])
sketch13.setExpression("Constraints[0]", "Params.sketch13_diameter")
pad12 = body11.newObject("PartDesign::Pad", "Pad011")
pad12.Profile = sketch13
pad12.setExpression("Length", "Params.pad12_length")
pad12.Reversed = True
doc.recompute()

datumplane10 = body11.newObject("PartDesign::Plane", "DatumPlane009")
datumplane10.AttachmentSupport = (doc.getObject("XY_Plane010"), [""])
datumplane10.MapMode = "FlatFace"
datumplane10.AttachmentOffset = App.Placement(V(0, 0, -2.75), App.Rotation())
draft10 = body11.newObject("PartDesign::Draft", "Draft009")
draft10.Base = (pad12, faces_at(pad12, [(16.519, 18.607, -3.25)]))
draft10.NeutralPlane = (datumplane10, [""])
draft10.setExpression("Angle", "Params.draft10_angle")
draft10.Reversed = True
doc.recompute()

boolean10 = body.newObject("PartDesign::Boolean", "Boolean009")
boolean10.Type = "Fuse"
boolean10.addObjects([body11])

# Sketch on XY plane
sketch14 = body.newObject("Sketcher::SketchObject", "Sketch013")
sketch14.AttachmentSupport = (doc.getObject("XY_Plane"), [""])
sketch14.MapMode = "FlatFace"
sketch14.AttachmentOffset = App.Placement(V(0, 0, -2.75), App.Rotation())
sketch14.addGeometry([
    Part.Circle(V(-13.519061, 18.607391, 0), V(0, 0, 1), 1),  # 0
    Part.Circle(V(-21.8743, -7.107391, 0), V(0, 0, 1), 1),  # 1
    Part.Circle(V(0, -23, 0), V(0, 0, 1), 1),  # 2
    Part.Circle(V(21.8743, -7.107391, 0), V(0, 0, 1), 1),  # 3
    Part.Circle(V(13.519061, 18.607391, 0), V(0, 0, 1), 1),  # 4
], False)
sketch14.addConstraint([
    Sketcher.Constraint("Equal", 0, 1),
    Sketcher.Constraint("Equal", 1, 2),
    Sketcher.Constraint("Equal", 2, 3),
    Sketcher.Constraint("Equal", 3, 4),
    Sketcher.Constraint("Symmetric", 1, 3, 3, 3, -2),
    Sketcher.Constraint("Symmetric", 0, 3, 4, 3, -2),
    Sketcher.Constraint("PointOnObject", 2, 3, -2),
    Sketcher.Constraint("Diameter", 0, Q("2 mm")),
    Sketcher.Constraint("DistanceY", 2, 3, -1, 1, Q("23 mm")),
    Sketcher.Constraint("DistanceX", 1, 3, -1, 1, Q("21.8743 mm")),
    Sketcher.Constraint("DistanceX", 0, 3, -1, 1, Q("13.519061 mm")),
    Sketcher.Constraint("DistanceY", -1, 1, 0, 3, Q("18.607391 mm")),
    Sketcher.Constraint("DistanceY", 1, 3, -1, 1, Q("7.107391 mm")),
])
sketch14.setExpression("Constraints[7]", "Params.sketch14_diameter")
pocket2 = body.newObject("PartDesign::Pocket", "Pocket001")
pocket2.Profile = sketch14
pocket2.setExpression("Length", "Params.pocket2_length")

doc.recompute()
